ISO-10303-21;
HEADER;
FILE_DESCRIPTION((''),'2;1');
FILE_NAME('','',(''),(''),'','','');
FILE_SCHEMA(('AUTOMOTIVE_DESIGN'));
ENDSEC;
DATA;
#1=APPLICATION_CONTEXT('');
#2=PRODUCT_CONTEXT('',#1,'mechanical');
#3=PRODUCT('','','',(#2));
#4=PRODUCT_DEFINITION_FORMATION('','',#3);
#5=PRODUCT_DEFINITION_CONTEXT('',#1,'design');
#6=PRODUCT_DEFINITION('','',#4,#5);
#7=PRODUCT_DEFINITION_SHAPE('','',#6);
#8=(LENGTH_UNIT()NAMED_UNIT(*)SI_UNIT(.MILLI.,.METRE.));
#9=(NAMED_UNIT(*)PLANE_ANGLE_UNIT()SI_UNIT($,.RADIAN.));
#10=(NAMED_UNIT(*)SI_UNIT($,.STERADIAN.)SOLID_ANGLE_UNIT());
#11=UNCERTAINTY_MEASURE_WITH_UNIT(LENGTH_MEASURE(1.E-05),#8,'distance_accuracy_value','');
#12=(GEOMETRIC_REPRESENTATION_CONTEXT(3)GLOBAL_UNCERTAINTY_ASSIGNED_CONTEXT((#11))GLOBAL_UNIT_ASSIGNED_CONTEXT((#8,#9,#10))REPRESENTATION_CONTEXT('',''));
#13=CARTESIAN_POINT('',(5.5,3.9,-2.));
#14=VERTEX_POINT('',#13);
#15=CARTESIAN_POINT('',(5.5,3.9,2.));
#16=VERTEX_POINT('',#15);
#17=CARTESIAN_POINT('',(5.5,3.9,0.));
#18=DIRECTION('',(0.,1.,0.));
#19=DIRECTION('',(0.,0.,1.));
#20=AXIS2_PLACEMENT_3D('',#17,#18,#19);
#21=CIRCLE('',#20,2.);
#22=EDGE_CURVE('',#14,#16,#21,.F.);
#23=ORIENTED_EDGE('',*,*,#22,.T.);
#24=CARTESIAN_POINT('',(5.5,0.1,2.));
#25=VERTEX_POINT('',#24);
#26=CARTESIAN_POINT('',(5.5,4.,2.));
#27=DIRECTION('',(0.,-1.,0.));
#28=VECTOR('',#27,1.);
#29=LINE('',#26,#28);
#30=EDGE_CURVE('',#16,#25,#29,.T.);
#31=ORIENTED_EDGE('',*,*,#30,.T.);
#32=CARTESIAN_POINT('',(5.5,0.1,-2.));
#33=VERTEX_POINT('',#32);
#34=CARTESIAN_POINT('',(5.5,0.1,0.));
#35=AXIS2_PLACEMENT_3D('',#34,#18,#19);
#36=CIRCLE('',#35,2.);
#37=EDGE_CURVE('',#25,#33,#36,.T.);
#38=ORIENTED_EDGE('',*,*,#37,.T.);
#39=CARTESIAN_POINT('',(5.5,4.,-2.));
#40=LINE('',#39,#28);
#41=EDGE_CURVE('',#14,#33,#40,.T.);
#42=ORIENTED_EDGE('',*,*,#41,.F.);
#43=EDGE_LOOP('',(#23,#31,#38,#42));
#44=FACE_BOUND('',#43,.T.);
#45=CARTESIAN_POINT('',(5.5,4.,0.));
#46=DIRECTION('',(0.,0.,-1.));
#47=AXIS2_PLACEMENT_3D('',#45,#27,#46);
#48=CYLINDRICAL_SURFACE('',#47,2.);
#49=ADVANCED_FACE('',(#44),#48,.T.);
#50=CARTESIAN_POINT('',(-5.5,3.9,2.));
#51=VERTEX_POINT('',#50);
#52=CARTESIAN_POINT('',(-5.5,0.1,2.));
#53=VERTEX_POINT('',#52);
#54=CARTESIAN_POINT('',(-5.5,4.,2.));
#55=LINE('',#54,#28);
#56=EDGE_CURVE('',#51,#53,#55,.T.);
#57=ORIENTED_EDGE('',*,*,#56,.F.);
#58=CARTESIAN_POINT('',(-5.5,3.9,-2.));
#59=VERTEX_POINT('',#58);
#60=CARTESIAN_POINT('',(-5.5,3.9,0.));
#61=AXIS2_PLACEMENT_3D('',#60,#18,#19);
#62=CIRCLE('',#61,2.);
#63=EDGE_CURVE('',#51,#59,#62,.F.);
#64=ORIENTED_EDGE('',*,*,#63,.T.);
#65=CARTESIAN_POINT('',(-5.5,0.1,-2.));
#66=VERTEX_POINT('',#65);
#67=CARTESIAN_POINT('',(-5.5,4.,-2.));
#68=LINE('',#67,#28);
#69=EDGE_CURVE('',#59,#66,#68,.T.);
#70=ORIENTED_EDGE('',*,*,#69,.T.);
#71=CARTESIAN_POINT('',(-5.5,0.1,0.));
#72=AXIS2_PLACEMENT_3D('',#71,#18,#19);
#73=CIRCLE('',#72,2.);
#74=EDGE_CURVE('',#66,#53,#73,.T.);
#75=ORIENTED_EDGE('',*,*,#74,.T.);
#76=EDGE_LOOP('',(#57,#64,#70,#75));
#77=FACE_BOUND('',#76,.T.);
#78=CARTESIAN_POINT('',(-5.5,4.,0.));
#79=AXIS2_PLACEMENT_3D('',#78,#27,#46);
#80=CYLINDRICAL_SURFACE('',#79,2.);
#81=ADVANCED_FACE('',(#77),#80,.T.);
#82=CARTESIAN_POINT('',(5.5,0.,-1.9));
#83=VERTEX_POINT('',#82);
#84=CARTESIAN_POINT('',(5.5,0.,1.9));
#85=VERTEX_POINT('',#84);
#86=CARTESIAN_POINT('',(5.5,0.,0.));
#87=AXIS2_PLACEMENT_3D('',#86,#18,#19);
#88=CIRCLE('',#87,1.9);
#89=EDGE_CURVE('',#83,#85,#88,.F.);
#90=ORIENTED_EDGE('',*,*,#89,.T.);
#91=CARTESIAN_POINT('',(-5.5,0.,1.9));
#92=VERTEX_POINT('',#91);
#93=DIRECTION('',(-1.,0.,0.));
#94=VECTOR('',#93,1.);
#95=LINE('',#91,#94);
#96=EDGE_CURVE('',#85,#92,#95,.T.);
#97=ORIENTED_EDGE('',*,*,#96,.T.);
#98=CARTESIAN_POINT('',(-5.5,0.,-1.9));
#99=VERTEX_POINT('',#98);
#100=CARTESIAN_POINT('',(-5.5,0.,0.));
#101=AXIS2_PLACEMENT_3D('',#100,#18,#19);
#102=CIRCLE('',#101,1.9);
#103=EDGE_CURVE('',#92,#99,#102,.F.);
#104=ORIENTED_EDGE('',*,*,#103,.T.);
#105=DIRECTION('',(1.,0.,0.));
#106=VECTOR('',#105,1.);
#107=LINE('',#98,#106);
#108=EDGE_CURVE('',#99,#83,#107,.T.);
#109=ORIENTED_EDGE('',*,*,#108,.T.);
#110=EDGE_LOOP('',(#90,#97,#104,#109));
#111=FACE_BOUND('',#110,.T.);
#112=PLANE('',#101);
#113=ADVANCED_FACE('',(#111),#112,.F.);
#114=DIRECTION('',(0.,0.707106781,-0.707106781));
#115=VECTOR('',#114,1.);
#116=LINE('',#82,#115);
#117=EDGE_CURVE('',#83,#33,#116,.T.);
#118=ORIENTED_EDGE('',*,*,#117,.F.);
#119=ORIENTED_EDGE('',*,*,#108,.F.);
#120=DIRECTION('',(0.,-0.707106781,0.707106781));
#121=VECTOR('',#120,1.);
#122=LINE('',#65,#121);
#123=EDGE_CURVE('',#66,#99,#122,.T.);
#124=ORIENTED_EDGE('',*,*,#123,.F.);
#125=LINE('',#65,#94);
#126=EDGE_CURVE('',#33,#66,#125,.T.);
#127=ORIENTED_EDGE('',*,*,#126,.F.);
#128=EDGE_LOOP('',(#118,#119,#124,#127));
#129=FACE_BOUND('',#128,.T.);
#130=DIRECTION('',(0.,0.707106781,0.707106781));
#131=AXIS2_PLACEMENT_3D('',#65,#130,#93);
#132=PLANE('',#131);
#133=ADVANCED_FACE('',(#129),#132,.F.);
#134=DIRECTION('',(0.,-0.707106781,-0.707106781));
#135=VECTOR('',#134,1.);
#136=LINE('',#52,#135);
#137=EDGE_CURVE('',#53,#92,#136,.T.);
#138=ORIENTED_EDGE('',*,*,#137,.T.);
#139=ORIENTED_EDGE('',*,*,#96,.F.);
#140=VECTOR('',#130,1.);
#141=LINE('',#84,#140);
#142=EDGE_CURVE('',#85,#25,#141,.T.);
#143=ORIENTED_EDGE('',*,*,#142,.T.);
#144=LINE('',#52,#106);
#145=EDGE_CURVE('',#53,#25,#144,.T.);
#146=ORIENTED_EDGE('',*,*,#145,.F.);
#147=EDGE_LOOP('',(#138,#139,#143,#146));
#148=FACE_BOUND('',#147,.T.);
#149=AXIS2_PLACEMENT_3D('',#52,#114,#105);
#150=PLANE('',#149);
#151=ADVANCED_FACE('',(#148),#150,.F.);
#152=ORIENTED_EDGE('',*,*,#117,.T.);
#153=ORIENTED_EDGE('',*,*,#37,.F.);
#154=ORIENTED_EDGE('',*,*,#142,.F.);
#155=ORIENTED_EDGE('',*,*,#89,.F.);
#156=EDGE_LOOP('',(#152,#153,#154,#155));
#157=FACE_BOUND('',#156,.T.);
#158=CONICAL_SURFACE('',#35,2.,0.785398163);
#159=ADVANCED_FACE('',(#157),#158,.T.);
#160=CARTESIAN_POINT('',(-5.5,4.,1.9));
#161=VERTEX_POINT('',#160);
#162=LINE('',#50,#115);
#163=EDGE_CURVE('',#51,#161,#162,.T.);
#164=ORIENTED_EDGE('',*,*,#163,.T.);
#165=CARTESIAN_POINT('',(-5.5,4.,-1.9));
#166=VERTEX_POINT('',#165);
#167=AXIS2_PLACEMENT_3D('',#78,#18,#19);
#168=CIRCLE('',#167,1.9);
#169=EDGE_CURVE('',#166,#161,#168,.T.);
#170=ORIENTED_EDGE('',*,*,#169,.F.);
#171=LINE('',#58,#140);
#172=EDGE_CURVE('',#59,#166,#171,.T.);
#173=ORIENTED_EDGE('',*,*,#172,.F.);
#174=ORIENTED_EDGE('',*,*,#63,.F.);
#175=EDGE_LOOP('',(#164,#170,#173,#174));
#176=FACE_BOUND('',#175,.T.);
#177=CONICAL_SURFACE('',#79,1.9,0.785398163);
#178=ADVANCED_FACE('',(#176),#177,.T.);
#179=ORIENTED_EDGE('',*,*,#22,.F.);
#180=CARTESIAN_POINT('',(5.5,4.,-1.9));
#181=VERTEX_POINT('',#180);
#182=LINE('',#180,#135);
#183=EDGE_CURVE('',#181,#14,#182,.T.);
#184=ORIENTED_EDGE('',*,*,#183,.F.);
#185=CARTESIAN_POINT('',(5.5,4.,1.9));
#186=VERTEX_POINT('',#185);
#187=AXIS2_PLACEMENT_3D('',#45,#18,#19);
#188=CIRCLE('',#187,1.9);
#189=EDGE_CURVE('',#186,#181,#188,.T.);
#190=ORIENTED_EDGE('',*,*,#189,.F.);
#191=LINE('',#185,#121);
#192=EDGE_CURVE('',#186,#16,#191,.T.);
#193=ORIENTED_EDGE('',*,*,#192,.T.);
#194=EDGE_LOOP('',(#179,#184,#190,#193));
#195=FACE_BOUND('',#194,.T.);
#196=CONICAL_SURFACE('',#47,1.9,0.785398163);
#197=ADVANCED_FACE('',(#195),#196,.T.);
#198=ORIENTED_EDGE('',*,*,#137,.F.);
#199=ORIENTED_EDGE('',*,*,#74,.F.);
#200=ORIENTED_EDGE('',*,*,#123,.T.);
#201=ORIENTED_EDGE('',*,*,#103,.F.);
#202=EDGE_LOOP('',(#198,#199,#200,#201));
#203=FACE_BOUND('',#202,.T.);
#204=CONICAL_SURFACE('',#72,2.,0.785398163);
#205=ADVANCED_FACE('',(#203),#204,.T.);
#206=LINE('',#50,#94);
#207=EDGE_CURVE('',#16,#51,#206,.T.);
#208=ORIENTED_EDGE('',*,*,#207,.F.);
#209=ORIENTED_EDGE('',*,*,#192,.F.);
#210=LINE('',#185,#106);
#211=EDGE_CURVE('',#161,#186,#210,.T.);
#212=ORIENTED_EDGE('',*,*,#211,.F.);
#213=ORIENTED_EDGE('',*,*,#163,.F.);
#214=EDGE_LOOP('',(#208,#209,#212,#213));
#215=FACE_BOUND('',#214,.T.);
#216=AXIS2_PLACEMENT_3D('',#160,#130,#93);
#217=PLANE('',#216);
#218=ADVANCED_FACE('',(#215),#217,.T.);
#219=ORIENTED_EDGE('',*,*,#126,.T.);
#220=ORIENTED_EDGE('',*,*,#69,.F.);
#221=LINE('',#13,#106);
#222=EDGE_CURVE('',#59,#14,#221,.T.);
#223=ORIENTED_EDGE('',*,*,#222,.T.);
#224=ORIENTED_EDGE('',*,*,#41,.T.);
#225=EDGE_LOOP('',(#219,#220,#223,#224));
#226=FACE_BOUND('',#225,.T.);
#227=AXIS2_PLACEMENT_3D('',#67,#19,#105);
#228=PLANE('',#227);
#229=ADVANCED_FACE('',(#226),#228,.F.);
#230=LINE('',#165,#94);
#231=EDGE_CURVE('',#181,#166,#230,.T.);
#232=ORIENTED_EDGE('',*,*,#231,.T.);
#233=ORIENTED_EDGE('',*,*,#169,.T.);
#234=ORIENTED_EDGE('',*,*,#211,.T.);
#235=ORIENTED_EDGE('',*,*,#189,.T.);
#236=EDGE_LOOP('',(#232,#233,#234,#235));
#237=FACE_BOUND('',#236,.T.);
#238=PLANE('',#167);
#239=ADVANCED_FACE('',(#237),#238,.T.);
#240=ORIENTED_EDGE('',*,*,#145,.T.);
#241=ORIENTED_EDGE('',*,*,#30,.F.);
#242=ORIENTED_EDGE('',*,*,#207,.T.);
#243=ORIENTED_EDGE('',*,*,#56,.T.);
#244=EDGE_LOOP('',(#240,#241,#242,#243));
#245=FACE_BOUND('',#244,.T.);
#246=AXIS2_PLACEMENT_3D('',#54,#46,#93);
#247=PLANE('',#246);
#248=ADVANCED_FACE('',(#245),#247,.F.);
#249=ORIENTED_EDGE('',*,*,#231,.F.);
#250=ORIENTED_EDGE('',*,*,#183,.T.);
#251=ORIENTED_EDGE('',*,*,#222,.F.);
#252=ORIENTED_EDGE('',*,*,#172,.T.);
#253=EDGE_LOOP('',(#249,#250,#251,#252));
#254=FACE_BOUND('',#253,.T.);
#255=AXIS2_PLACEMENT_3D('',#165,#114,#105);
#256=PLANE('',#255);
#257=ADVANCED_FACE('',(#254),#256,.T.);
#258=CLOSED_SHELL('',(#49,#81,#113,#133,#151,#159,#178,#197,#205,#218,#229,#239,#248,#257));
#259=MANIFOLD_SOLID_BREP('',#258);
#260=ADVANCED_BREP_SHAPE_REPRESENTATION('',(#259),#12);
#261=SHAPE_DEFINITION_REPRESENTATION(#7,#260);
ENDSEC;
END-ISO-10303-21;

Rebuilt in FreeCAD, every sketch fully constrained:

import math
import FreeCAD as App
import Part
import Sketcher
from FreeCAD import Vector


def edges_at(feature, points):
    """Names of the edges that pass closest to the given points."""
    edges = feature.Shape.Edges
    near = lambda p: min(range(len(edges)), key=lambda i: edges[i].distToShape(Part.Vertex(*p))[0])
    return sorted({f"Edge{near(p) + 1}" for p in points})

doc = App.newDocument("Part")
params = doc.addObject("Spreadsheet::Sheet", "Params")
for row, (alias, value) in enumerate([
    ("sketch1_radius", "2 mm"),
    ("sketch1_width", "11 mm"),
    ("pad1_length", "4 mm"),
    ("chamfer_size", "0.1 mm"),
], start=1):
    params.set(f"A{row}", alias)
    params.set(f"B{row}", "=" + value)
    params.setAlias(f"B{row}", alias)

body = doc.addObject("PartDesign::Body", "Body")

sketch1 = doc.addObject("Sketcher::SketchObject", "Sketch")
body.addObject(sketch1)
sketch1.AttachmentSupport = (doc.XZ_Plane, [""])
sketch1.MapMode = "FlatFace"
sketch1.addGeometry([
    Part.LineSegment(Vector(5.5, -2, 0), Vector(-5.5, -2, 0)),
    Part.ArcOfCircle(Part.Circle(Vector(-5.5, 0, 0), Vector(0, 0, 1), 2), math.radians(90), math.radians(270)),
    Part.LineSegment(Vector(-5.5, 2, 0), Vector(5.5, 2, 0)),
    Part.ArcOfCircle(Part.Circle(Vector(5.5, 0, 0), Vector(0, 0, 1), 2), math.radians(-90), math.radians(90)),
], False)
sketch1.addConstraint([
    Sketcher.Constraint("Tangent", 0, 2, 1, 2),
    Sketcher.Constraint("Tangent", 1, 1, 2, 1),
    Sketcher.Constraint("Tangent", 2, 2, 3, 2),
    Sketcher.Constraint("Tangent", 3, 1, 0, 1),
    Sketcher.Constraint("Horizontal", 0),
    Sketcher.Constraint("Horizontal", 2),
    Sketcher.Constraint("Symmetric", 1, 3, 3, 3, -1, 1),
    Sketcher.Constraint("Radius", 1, 2.0),
    Sketcher.Constraint("DistanceX", 0, 2, 0, 1, 11.0),
])
sketch1.setExpression("Constraints[7]", "Params.sketch1_radius")
sketch1.setExpression("Constraints[8]", "Params.sketch1_width")
pad1 = doc.addObject("PartDesign::Pad", "Pad")
body.addObject(pad1)
pad1.Profile = sketch1
pad1.setExpression("Length", "Params.pad1_length")
pad1.Reversed = True
doc.recompute()

chamfer = doc.addObject("PartDesign::Chamfer", "Chamfer")
body.addObject(chamfer)
chamfer.Base = (pad1, edges_at(pad1, [
    (7.5, 4, 0),
    (0, 4, -2),
    (-7.5, 4, 0),
    (0, 0, -2),
    (7.5, 0, 0),
    (0, 0, 2),
    (-7.5, 0, 0),
    (0, 4, 2),
]))
chamfer.setExpression("Size", "Params.chamfer_size")

doc.recompute()
